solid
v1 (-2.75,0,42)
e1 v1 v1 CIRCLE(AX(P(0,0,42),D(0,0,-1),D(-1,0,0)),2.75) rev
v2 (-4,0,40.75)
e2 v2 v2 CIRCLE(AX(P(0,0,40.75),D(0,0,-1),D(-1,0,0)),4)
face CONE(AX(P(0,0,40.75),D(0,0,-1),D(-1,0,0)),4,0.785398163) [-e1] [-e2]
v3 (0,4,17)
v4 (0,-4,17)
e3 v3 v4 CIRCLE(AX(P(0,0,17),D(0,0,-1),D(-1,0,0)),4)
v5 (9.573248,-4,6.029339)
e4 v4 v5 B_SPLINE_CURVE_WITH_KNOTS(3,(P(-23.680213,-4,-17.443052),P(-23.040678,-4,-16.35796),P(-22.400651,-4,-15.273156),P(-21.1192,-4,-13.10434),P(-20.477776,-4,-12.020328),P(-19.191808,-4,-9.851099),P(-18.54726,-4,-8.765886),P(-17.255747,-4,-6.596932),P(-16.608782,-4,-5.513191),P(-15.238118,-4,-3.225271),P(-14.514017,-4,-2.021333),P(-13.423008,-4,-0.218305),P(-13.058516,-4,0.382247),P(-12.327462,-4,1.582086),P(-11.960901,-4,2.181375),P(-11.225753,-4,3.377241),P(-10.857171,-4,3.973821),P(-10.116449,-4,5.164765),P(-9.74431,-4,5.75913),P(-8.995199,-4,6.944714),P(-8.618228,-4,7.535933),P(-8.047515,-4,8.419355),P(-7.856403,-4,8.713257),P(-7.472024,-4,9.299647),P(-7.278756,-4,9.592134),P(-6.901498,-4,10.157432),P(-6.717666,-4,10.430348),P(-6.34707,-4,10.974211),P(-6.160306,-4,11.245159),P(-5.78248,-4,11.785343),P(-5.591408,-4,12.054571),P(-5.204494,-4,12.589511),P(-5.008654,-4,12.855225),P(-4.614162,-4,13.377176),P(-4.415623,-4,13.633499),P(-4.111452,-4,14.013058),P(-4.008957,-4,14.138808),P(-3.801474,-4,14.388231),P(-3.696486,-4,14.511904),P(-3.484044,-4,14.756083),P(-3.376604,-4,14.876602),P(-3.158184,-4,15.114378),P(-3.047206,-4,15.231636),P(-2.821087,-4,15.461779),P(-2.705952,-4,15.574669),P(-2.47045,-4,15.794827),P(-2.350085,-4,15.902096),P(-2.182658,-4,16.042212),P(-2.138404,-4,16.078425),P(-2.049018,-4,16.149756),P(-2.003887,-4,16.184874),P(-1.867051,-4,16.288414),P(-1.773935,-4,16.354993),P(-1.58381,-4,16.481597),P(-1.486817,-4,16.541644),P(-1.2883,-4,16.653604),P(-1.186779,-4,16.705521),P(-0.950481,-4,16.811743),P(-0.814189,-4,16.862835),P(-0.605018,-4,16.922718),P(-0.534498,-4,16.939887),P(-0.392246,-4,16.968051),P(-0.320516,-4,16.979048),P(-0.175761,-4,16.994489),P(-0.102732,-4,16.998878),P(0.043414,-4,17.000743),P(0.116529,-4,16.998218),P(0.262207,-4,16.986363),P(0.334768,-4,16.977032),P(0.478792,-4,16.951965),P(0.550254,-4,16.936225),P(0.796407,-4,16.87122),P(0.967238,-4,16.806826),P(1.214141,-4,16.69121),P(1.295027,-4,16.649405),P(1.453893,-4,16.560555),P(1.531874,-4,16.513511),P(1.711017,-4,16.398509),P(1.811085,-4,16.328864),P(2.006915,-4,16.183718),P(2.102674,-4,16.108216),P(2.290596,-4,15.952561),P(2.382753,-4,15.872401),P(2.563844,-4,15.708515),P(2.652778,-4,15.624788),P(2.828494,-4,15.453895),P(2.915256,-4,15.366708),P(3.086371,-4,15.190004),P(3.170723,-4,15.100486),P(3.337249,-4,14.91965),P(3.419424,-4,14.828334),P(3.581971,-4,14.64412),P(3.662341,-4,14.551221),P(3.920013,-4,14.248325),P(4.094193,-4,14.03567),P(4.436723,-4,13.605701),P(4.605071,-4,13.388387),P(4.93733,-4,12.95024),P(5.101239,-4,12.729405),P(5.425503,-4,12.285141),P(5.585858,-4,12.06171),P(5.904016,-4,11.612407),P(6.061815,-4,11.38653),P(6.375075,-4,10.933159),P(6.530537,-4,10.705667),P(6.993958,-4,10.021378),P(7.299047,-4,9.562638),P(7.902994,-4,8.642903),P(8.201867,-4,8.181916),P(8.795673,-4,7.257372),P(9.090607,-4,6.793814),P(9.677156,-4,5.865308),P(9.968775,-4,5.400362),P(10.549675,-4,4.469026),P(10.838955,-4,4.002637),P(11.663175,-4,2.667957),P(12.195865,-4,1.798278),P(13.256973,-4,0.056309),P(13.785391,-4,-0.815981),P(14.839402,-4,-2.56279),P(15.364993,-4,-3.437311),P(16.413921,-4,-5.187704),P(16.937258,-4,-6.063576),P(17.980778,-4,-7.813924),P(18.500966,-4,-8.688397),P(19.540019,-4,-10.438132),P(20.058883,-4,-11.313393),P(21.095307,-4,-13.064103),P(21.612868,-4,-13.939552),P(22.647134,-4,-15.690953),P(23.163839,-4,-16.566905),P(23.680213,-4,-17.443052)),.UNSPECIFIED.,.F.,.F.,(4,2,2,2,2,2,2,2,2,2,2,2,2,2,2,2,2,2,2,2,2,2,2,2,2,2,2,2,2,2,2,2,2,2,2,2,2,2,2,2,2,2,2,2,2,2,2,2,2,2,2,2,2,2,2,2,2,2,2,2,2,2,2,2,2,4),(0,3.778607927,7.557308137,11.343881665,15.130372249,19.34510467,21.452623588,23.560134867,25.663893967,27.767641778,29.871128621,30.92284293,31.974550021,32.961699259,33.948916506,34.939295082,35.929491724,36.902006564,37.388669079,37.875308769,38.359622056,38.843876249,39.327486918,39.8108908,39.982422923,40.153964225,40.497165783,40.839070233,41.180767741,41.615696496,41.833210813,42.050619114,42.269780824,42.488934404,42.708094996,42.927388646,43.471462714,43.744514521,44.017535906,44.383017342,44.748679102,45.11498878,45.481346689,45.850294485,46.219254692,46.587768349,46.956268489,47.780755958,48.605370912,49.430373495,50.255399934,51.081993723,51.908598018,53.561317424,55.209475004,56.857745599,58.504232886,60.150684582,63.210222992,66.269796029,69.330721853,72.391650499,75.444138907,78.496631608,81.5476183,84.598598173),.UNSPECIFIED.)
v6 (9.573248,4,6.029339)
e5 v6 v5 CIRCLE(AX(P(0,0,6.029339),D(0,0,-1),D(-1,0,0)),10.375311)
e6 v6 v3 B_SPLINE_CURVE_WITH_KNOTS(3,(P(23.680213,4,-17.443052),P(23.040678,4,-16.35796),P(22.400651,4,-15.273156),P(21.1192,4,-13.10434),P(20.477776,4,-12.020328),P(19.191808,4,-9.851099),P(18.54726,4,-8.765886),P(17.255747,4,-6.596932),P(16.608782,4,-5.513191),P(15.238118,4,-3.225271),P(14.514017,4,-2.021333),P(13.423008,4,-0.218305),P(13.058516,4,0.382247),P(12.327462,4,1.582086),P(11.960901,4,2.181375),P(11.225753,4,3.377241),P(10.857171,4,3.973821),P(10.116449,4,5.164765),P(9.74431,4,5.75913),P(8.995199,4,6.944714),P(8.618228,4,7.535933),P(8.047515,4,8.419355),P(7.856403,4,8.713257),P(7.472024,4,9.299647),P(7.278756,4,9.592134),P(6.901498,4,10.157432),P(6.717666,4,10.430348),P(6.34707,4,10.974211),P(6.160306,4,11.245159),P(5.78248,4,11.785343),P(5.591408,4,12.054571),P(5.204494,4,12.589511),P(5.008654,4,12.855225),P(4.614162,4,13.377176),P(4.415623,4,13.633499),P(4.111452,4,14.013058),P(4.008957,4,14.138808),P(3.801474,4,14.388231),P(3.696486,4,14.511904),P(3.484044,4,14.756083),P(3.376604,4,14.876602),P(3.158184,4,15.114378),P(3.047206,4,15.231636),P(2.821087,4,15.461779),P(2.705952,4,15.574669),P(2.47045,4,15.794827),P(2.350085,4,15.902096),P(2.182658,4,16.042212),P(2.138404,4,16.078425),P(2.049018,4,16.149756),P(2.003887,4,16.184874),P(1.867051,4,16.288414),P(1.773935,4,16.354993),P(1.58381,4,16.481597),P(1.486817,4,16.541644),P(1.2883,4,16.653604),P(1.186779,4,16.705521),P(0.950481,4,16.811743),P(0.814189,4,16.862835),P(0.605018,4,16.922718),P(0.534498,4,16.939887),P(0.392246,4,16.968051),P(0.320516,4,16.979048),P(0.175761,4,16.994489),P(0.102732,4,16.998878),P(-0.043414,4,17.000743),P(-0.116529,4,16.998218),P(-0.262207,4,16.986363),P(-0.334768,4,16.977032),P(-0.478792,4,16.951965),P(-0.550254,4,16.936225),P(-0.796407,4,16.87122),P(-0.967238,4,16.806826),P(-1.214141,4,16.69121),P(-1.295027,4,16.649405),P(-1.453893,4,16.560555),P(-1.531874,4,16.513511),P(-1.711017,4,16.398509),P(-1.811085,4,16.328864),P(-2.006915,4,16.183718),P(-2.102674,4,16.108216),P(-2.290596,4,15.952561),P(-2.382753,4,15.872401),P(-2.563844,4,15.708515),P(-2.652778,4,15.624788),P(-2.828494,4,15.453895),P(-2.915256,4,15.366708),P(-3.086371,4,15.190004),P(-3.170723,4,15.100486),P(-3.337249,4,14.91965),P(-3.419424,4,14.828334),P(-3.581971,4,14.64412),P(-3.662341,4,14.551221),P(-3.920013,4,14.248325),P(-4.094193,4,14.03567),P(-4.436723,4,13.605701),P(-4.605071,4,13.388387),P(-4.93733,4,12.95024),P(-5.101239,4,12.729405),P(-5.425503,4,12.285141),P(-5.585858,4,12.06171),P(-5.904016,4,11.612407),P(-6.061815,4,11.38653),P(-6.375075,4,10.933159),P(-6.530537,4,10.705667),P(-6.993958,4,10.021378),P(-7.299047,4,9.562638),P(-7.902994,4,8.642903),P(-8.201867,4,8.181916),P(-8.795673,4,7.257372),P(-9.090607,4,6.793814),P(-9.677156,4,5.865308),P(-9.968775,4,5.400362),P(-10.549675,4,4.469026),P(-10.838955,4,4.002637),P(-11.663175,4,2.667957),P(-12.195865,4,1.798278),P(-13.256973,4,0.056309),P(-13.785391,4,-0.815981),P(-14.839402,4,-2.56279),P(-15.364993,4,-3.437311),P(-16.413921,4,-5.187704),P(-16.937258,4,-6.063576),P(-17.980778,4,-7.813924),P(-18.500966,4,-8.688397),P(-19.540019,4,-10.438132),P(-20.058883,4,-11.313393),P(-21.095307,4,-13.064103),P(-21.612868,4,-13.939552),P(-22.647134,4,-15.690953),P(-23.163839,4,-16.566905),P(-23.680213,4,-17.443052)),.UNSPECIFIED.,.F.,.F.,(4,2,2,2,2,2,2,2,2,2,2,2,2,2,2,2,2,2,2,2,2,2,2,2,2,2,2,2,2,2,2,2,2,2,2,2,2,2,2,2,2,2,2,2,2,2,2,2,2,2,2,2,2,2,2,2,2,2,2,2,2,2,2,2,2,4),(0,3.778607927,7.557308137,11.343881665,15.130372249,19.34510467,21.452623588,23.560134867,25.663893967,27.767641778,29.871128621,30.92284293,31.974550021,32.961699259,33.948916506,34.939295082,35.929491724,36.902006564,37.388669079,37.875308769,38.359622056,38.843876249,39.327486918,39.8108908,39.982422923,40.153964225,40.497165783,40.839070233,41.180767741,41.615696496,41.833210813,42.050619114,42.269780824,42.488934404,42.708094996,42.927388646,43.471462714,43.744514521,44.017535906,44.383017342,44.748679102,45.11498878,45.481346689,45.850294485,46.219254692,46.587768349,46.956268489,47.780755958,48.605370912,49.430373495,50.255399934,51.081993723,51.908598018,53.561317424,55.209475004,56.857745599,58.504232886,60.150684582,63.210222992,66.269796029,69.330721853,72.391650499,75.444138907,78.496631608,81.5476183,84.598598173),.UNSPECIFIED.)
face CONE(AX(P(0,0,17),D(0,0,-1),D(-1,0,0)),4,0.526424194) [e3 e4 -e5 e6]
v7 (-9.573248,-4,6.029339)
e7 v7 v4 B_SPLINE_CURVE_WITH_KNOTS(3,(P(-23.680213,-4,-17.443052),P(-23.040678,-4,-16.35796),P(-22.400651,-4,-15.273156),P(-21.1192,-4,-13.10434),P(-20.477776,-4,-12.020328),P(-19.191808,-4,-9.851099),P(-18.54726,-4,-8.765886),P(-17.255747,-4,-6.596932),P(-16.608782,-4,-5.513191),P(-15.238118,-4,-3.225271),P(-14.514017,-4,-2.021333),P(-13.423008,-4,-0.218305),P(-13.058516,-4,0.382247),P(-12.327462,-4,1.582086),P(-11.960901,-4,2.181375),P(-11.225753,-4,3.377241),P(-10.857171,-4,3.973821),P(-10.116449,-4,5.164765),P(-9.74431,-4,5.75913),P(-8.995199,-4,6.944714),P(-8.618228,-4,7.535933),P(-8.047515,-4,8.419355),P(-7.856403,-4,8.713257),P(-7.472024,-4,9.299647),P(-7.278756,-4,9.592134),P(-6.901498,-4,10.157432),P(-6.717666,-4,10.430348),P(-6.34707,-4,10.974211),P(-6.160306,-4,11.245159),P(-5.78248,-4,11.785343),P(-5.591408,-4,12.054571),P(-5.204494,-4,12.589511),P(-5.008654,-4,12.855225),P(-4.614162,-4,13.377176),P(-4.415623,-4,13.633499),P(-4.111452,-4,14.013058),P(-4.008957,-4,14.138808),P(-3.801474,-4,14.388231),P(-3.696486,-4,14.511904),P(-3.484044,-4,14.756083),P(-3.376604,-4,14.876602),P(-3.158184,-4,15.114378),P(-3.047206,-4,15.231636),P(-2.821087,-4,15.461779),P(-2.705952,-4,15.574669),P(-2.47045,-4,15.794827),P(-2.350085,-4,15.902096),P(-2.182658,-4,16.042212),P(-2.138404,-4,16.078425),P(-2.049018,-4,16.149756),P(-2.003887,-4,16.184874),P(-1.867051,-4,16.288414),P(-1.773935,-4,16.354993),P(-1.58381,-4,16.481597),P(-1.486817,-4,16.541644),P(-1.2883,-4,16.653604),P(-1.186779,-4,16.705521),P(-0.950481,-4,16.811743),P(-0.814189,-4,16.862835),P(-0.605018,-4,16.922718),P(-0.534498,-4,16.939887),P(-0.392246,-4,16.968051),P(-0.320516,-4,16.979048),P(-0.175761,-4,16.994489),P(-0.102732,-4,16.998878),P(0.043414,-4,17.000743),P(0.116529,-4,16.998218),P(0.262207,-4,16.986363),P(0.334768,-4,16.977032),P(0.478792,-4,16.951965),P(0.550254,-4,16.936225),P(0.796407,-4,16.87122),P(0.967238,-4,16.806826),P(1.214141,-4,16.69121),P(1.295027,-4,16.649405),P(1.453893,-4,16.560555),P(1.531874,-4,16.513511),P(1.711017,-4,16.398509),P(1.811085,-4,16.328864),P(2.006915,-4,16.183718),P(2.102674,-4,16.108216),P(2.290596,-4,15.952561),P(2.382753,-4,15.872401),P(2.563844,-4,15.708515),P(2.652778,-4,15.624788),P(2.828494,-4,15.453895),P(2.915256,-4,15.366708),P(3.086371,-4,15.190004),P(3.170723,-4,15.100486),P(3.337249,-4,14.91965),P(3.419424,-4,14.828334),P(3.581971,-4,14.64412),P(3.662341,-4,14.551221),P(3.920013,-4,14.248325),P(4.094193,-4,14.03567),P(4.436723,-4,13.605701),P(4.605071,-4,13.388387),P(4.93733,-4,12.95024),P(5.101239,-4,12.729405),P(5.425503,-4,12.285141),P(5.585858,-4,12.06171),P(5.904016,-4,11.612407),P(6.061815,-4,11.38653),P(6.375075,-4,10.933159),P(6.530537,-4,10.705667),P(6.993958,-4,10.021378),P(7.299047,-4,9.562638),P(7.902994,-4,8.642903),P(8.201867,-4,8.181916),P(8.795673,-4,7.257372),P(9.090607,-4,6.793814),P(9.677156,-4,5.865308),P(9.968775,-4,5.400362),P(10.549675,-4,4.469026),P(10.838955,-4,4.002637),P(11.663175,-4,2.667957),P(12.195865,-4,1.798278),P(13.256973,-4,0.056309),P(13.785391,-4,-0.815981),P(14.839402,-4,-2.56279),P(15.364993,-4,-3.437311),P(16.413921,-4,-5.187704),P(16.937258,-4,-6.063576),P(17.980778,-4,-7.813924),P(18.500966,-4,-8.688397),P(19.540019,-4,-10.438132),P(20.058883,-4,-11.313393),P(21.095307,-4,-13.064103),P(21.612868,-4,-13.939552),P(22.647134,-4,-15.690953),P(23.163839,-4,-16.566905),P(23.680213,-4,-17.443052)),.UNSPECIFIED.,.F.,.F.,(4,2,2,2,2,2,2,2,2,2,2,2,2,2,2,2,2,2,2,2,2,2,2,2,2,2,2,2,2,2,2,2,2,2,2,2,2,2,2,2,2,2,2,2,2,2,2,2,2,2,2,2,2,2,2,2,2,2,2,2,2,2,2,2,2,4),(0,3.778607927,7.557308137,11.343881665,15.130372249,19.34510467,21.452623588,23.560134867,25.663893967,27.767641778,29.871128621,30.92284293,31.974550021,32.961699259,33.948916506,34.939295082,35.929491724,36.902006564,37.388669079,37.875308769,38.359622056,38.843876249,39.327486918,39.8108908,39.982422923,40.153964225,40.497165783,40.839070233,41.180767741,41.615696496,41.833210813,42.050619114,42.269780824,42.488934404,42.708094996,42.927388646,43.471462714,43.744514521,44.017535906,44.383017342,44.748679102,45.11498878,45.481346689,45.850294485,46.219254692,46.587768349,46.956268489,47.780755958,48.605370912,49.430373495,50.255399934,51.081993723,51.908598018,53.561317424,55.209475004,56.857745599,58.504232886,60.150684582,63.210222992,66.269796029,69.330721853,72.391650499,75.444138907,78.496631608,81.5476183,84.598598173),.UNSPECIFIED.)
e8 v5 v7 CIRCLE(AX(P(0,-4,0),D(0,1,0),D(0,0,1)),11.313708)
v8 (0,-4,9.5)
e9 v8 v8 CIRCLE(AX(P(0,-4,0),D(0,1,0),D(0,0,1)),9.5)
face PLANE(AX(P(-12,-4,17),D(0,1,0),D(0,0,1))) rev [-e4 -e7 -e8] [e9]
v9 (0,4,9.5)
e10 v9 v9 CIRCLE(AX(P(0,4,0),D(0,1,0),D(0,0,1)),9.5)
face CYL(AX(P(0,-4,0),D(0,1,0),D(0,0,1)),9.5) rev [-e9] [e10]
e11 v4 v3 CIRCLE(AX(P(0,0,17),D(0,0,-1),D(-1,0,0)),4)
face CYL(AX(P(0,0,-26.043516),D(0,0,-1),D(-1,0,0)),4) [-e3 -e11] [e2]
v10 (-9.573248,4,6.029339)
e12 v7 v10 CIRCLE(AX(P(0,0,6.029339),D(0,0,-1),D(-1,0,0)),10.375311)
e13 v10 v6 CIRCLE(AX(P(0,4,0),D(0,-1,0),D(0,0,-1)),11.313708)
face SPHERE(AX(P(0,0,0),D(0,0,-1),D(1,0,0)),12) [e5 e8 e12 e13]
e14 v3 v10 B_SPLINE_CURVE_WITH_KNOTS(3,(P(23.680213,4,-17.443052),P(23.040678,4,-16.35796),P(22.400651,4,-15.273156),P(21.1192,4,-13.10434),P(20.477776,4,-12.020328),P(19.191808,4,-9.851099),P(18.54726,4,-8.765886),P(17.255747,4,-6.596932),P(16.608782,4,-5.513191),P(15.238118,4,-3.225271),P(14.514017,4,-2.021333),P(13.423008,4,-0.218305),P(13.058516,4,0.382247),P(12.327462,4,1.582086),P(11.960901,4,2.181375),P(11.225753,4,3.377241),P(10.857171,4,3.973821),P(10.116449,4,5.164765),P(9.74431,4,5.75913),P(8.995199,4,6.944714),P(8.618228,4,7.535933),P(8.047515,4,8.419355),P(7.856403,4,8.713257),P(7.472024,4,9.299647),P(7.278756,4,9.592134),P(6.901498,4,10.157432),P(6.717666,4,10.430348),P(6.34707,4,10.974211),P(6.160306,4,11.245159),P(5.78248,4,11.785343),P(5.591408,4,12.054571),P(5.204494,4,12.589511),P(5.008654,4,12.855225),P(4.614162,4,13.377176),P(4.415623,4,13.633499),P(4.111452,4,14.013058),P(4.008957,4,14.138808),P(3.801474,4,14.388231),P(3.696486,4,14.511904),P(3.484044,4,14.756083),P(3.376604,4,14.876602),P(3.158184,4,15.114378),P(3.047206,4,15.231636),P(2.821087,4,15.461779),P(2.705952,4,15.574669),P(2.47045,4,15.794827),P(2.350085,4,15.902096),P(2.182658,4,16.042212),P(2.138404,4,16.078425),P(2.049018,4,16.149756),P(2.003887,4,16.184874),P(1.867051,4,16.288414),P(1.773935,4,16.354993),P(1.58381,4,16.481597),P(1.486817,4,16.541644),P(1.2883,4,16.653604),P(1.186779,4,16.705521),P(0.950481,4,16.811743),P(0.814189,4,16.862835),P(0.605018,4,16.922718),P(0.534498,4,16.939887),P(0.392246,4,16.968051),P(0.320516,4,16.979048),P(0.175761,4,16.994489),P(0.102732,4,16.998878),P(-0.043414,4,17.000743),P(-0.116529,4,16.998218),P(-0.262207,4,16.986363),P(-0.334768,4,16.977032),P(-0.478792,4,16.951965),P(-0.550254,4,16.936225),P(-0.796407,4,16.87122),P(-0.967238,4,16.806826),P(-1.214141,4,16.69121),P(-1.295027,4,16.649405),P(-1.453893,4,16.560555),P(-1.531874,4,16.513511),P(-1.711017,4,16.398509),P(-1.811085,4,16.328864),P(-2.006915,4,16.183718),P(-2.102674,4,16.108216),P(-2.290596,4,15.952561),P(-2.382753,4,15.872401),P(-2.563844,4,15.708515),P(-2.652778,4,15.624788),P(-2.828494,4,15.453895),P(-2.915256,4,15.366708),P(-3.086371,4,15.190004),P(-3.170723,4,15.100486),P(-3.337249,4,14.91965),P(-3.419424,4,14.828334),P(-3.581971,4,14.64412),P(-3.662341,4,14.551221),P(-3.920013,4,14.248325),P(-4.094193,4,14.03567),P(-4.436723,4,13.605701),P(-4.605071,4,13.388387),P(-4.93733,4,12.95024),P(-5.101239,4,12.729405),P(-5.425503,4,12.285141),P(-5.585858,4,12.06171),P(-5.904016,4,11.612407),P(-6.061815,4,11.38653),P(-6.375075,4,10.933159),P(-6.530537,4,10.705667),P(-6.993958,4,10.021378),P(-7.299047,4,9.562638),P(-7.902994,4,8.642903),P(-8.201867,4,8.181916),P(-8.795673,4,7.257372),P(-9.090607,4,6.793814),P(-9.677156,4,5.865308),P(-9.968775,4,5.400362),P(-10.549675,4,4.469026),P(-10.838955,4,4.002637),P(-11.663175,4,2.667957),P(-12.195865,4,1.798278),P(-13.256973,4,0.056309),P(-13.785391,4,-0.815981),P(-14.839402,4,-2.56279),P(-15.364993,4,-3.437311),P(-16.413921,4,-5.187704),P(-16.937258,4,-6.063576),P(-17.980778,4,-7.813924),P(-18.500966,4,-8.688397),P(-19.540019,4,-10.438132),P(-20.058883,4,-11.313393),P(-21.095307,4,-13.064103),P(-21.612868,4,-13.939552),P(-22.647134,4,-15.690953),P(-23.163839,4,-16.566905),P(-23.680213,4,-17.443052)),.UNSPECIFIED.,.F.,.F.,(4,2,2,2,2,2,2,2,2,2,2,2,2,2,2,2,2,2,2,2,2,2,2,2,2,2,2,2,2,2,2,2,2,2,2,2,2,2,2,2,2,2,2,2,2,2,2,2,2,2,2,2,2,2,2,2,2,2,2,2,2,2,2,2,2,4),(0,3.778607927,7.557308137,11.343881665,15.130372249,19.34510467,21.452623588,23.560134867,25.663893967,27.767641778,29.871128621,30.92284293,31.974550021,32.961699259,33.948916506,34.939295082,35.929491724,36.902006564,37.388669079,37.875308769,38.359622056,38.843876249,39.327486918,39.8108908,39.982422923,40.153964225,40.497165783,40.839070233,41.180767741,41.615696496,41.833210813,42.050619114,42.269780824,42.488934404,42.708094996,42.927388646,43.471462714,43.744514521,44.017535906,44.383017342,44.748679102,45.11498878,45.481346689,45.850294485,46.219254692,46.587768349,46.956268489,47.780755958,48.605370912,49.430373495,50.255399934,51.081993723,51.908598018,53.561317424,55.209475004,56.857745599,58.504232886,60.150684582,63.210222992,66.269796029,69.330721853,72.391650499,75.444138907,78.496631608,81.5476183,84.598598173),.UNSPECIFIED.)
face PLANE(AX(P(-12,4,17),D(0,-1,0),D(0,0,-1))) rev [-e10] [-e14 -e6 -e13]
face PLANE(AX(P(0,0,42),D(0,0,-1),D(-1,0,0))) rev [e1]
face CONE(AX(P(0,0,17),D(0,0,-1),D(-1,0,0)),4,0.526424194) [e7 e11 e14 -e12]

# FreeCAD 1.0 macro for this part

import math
import FreeCAD as App
import Part
import Sketcher
from FreeCAD import Vector
Q = App.Units.Quantity


def edges_at(feature, points):
    """Names of the edges that pass closest to the given points."""
    edges = feature.Shape.Edges
    near = lambda p: min(range(len(edges)), key=lambda i: edges[i].distToShape(Part.Vertex(*p))[0])
    return sorted({f"Edge{near(p) + 1}" for p in points})

doc = App.newDocument("Part")
body = doc.addObject("PartDesign::Body", "Body")

# Sketch on XZ plane
sketch1 = body.newObject("Sketcher::SketchObject", "Sketch")
sketch1.AttachmentSupport = (doc.getObject("XZ_Plane"), [""])
sketch1.MapMode = "FlatFace"
sketch1.addGeometry([
    Part.LineSegment(Vector(0, -12, 0), Vector(0, 42, 0)),  # 0
    Part.LineSegment(Vector(0, 42, 0), Vector(4, 42, 0)),  # 1
    Part.LineSegment(Vector(4, 42, 0), Vector(4, 17, 0)),  # 2
    Part.LineSegment(Vector(4, 17, 0), Vector(10.4, 6, 0)),  # 3
    Part.ArcOfCircle(Part.Circle(Vector(0, 0, 0), Vector(0, 0, 1), 12), math.radians(-90), math.radians(30)),  # 4
], False)
sketch1.addConstraint([
    Sketcher.Constraint("Coincident", 0, 2, 1, 1),
    Sketcher.Constraint("Coincident", 1, 2, 2, 1),
    Sketcher.Constraint("Coincident", 2, 2, 3, 1),
    Sketcher.Constraint("Tangent", 3, 2, 4, 2),
    Sketcher.Constraint("Coincident", 4, 1, 0, 1),
    Sketcher.Constraint("Vertical", 0),
    Sketcher.Constraint("Horizontal", 1),
    Sketcher.Constraint("Vertical", 2),
    Sketcher.Constraint("Coincident", 4, 3, -1, 1),
    Sketcher.Constraint("PointOnObject", 0, 2, -2),
    Sketcher.Constraint("Radius", 4, Q("12 mm")),
    Sketcher.Constraint("DistanceX", 1, 1, 1, 2, Q("4 mm")),
    Sketcher.Constraint("DistanceY", 0, 1, 0, 2, Q("54 mm")),
    Sketcher.Constraint("DistanceY", 2, 2, 2, 1, Q("25 mm")),
])
revolution = body.newObject("PartDesign::Revolution", "Revolution")
revolution.Profile = sketch1
revolution.ReferenceAxis = (sketch1, ["V_Axis"])
revolution.Angle = 360

# Sketch on YZ plane
sketch2 = body.newObject("Sketcher::SketchObject", "Sketch001")
sketch2.AttachmentSupport = (doc.getObject("YZ_Plane"), [""])
sketch2.MapMode = "FlatFace"
sketch2.addGeometry([
    Part.LineSegment(Vector(4, 17, 0), Vector(4, -11, 0)),  # 0
    Part.ArcOfCircle(Part.Circle(Vector(0, 0, 0), Vector(0, 0, 1), 12), math.radians(-71), math.radians(30)),  # 1
    Part.LineSegment(Vector(10, 6, 0), Vector(4, 17, 0)),  # 2
    Part.LineSegment(Vector(-4, -11, 0), Vector(-4, 17, 0)),  # 3
    Part.LineSegment(Vector(-4, 17, 0), Vector(-10, 6, 0)),  # 4
    Part.ArcOfCircle(Part.Circle(Vector(0, 0, 0), Vector(0, 0, 1), 12), math.radians(150), math.radians(251)),  # 5
], False)
sketch2.addConstraint([
    Sketcher.Constraint("Coincident", 0, 2, 1, 1),
    Sketcher.Constraint("Tangent", 1, 2, 2, 1),
    Sketcher.Constraint("Coincident", 2, 2, 0, 1),
    Sketcher.Constraint("Coincident", 3, 2, 4, 1),
    Sketcher.Constraint("Tangent", 4, 2, 5, 1),
    Sketcher.Constraint("Coincident", 5, 2, 3, 1),
    Sketcher.Constraint("Vertical", 0),
    Sketcher.Constraint("Vertical", 3),
    Sketcher.Constraint("Coincident", 1, 3, -1, 1),
    Sketcher.Constraint("Coincident", 5, 3, -1, 1),
    Sketcher.Constraint("Equal", 1, 5),
    Sketcher.Constraint("Symmetric", 2, 2, 3, 2, -2),
    Sketcher.Constraint("Radius", 1, Q("12 mm")),
    Sketcher.Constraint("DistanceX", -1, 1, 0, 2, Q("4 mm")),
    Sketcher.Constraint("DistanceY", -1, 1, 2, 2, Q("17 mm")),
])
pocket1 = body.newObject("PartDesign::Pocket", "Pocket")
pocket1.Profile = sketch2
pocket1.Type = "ThroughAll"
pocket1.Midplane = True

# Sketch on XZ plane
sketch3 = body.newObject("Sketcher::SketchObject", "Sketch002")
sketch3.AttachmentSupport = (doc.getObject("XZ_Plane"), [""])
sketch3.MapMode = "FlatFace"
sketch3.addGeometry(Part.Circle(Vector(0, 0, 0), Vector(0, 0, 1), 10), False)
sketch3.addConstraint([
    Sketcher.Constraint("Coincident", 0, 3, -1, 1),
    Sketcher.Constraint("Diameter", 0, Q("19 mm")),
])
pocket2 = body.newObject("PartDesign::Pocket", "Pocket001")
pocket2.Profile = sketch3
pocket2.Type = "ThroughAll"
pocket2.Midplane = True
doc.recompute()

chamfer = body.newObject("PartDesign::Chamfer", "Chamfer")
chamfer.Base = (pocket2, edges_at(pocket2, [(-4, 0, 42)]))
chamfer.Size = 1.25

doc.recompute()
